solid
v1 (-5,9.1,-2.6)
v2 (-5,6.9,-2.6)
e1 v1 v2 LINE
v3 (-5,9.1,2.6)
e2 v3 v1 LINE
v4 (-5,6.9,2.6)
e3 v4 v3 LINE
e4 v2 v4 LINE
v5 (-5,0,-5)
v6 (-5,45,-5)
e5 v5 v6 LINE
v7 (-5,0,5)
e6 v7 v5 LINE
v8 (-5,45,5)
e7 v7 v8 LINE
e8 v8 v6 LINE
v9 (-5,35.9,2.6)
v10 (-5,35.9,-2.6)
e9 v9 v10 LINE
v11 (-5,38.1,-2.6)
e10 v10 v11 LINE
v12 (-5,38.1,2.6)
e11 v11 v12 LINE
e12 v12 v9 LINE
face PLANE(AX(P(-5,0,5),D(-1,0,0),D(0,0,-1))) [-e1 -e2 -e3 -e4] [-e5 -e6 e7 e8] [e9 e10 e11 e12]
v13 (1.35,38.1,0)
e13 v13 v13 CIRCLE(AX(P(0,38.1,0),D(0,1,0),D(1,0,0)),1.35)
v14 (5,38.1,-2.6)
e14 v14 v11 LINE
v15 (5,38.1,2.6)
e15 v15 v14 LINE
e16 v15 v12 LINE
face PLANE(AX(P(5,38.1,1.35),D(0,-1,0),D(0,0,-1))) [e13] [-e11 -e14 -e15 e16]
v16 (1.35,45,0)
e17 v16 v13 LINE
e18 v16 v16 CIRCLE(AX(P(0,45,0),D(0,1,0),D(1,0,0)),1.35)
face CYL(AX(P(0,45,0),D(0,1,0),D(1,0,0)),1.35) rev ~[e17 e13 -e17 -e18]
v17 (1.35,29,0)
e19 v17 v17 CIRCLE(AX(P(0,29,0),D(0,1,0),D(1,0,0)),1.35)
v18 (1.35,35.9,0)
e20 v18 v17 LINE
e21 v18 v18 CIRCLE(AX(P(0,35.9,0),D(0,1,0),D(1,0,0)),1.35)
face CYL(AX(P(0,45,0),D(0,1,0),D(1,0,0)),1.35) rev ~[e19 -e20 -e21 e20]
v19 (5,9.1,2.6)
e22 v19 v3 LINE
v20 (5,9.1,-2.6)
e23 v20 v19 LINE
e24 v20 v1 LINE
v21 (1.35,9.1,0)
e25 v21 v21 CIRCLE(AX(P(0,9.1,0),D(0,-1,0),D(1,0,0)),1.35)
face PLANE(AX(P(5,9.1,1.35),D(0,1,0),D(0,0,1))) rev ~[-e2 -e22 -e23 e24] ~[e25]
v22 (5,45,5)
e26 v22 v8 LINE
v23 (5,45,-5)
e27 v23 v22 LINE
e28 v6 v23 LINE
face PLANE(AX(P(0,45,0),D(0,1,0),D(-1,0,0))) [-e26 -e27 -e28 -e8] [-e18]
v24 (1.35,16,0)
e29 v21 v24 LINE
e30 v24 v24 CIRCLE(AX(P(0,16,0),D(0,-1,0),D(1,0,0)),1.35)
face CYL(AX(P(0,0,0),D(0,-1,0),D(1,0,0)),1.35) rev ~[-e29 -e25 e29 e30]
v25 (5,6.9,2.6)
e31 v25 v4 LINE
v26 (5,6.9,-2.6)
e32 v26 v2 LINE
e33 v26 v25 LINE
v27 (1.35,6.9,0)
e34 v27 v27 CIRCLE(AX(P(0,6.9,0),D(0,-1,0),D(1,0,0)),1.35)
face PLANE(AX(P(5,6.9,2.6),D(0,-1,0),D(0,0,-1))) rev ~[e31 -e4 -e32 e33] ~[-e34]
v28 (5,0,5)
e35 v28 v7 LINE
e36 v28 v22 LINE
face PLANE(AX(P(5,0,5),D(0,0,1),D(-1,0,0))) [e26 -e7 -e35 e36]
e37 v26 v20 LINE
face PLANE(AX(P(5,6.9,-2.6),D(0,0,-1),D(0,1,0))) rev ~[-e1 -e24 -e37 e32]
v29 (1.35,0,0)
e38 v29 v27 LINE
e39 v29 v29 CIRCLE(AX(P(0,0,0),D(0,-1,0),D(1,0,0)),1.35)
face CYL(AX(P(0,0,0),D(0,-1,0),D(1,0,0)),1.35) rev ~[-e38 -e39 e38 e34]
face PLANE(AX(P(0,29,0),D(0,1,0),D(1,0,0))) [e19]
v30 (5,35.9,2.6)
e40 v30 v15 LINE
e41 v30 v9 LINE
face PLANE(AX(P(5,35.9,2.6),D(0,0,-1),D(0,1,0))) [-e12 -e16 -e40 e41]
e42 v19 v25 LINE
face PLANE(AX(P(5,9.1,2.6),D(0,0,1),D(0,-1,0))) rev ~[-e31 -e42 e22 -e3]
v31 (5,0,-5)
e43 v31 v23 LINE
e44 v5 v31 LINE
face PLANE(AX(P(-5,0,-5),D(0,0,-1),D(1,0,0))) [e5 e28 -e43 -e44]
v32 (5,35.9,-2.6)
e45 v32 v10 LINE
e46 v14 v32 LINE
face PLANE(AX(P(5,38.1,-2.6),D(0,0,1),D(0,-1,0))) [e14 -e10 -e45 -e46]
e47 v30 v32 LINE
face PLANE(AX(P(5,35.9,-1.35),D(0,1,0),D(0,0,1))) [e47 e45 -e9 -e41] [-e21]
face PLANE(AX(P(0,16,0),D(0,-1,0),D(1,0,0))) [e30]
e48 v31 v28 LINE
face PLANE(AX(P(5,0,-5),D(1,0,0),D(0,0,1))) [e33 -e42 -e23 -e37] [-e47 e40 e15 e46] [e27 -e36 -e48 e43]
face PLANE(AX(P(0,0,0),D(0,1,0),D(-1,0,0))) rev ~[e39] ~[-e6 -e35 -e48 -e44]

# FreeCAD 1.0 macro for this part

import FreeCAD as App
import Part
import Sketcher
from FreeCAD import Vector


def add_polygon(sketch, points):
    """Adds a closed chain of lines whose ends are joined by coincident constraints."""
    first, n = sketch.GeometryCount, len(points)
    for a, b in zip(points, points[1:] + points[:1]):
        sketch.addGeometry(Part.LineSegment(App.Vector(*a, 0), App.Vector(*b, 0)), False)
    for i in range(n):
        sketch.addConstraint(Sketcher.Constraint("Coincident", first + i, 2, first + (i + 1) % n, 1))

doc = App.newDocument("Part")
body = doc.addObject("PartDesign::Body", "Body")

# Sketch on XZ plane
sketch1 = body.newObject("Sketcher::SketchObject", "Sketch")
sketch1.AttachmentSupport = (doc.getObject("XZ_Plane"), [""])
sketch1.MapMode = "FlatFace"
add_polygon(sketch1, [(-5, 5), (5, 5), (5, -5), (-5, -5)])  # lines 0-3
sketch1.addConstraint(Sketcher.Constraint("Horizontal", 0))
sketch1.addConstraint(Sketcher.Constraint("Vertical", 1))
sketch1.addConstraint(Sketcher.Constraint("Horizontal", 2))
sketch1.addConstraint(Sketcher.Constraint("Vertical", 3))
sketch1.addConstraint(Sketcher.Constraint("Symmetric", 0, 2, 2, 2, -1, 1))
sketch1.addConstraint(Sketcher.Constraint("Equal", 2, 1))
sketch1.addConstraint(Sketcher.Constraint("DistanceX", 0, 1, 0, 2, 10.0))
pad1 = body.newObject("PartDesign::Pad", "Pad")
pad1.Profile = sketch1
pad1.Length = 45
pad1.Reversed = True

# Sketch on XZ plane
sketch2 = body.newObject("Sketcher::SketchObject", "Sketch001")
sketch2.AttachmentSupport = (doc.getObject("XZ_Plane"), [""])
sketch2.MapMode = "FlatFace"
sketch2.addGeometry(Part.Circle(Vector(0, 0, 0), Vector(0, 0, 1), 1.35), False)
sketch2.addConstraint(Sketcher.Constraint("Coincident", 0, 3, -1, 1))
sketch2.addConstraint(Sketcher.Constraint("Diameter", 0, 2.7))
pocket1 = body.newObject("PartDesign::Pocket", "Pocket")
pocket1.Profile = sketch2
pocket1.Length = 16

# Sketch on XZ plane
sketch3 = body.newObject("Sketcher::SketchObject", "Sketch002")
sketch3.AttachmentSupport = (doc.getObject("XZ_Plane"), [""])
sketch3.MapMode = "FlatFace"
sketch3.AttachmentOffset = App.Placement(Vector(0, 0, -45), App.Rotation())
sketch3.addGeometry(Part.Circle(Vector(0, 0, 0), Vector(0, 0, 1), 1.35), False)
sketch3.addConstraint(Sketcher.Constraint("Coincident", 0, 3, -1, 1))
sketch3.addConstraint(Sketcher.Constraint("Diameter", 0, 2.7))
pocket2 = body.newObject("PartDesign::Pocket", "Pocket001")
pocket2.Profile = sketch3
pocket2.Length = 16
pocket2.Reversed = True

# Sketch on YZ plane
sketch4 = body.newObject("Sketcher::SketchObject", "Sketch003")
sketch4.AttachmentSupport = (doc.getObject("YZ_Plane"), [""])
sketch4.MapMode = "FlatFace"
sketch4.AttachmentOffset = App.Placement(Vector(0, 0, 5), App.Rotation())
add_polygon(sketch4, [(38.1, 2.6), (35.9, 2.6), (35.9, -2.6), (38.1, -2.6)])  # lines 0-3
add_polygon(sketch4, [(6.9, 2.6), (6.9, -2.6), (9.1, -2.6), (9.1, 2.6)])  # lines 4-7
sketch4.addConstraint(Sketcher.Constraint("Horizontal", 0))
sketch4.addConstraint(Sketcher.Constraint("Vertical", 1))
sketch4.addConstraint(Sketcher.Constraint("Horizontal", 2))
sketch4.addConstraint(Sketcher.Constraint("Vertical", 3))
sketch4.addConstraint(Sketcher.Constraint("Vertical", 4))
sketch4.addConstraint(Sketcher.Constraint("Horizontal", 5))
sketch4.addConstraint(Sketcher.Constraint("Vertical", 6))
sketch4.addConstraint(Sketcher.Constraint("Horizontal", 7))
sketch4.addConstraint(Sketcher.Constraint("Horizontal", 2, 2, 4, 2))
sketch4.addConstraint(Sketcher.Constraint("Horizontal", 3, 2, 6, 2))
sketch4.addConstraint(Sketcher.Constraint("Equal", 2, 5))
sketch4.addConstraint(Sketcher.Constraint("DistanceX", 0, 2, 0, 1, 2.2))
sketch4.addConstraint(Sketcher.Constraint("DistanceY", 1, 2, 1, 1, 5.2))
sketch4.addConstraint(Sketcher.Constraint("DistanceX", 4, 2, 1, 2, 29.0))
sketch4.addConstraint(Sketcher.Constraint("DistanceX", -1, 1, 0, 2, 35.9))
sketch4.addConstraint(Sketcher.Constraint("DistanceY", -1, 1, 0, 2, 2.6))
pocket3 = body.newObject("PartDesign::Pocket", "Pocket002")
pocket3.Profile = sketch4
pocket3.Length = 16

doc.recompute()
